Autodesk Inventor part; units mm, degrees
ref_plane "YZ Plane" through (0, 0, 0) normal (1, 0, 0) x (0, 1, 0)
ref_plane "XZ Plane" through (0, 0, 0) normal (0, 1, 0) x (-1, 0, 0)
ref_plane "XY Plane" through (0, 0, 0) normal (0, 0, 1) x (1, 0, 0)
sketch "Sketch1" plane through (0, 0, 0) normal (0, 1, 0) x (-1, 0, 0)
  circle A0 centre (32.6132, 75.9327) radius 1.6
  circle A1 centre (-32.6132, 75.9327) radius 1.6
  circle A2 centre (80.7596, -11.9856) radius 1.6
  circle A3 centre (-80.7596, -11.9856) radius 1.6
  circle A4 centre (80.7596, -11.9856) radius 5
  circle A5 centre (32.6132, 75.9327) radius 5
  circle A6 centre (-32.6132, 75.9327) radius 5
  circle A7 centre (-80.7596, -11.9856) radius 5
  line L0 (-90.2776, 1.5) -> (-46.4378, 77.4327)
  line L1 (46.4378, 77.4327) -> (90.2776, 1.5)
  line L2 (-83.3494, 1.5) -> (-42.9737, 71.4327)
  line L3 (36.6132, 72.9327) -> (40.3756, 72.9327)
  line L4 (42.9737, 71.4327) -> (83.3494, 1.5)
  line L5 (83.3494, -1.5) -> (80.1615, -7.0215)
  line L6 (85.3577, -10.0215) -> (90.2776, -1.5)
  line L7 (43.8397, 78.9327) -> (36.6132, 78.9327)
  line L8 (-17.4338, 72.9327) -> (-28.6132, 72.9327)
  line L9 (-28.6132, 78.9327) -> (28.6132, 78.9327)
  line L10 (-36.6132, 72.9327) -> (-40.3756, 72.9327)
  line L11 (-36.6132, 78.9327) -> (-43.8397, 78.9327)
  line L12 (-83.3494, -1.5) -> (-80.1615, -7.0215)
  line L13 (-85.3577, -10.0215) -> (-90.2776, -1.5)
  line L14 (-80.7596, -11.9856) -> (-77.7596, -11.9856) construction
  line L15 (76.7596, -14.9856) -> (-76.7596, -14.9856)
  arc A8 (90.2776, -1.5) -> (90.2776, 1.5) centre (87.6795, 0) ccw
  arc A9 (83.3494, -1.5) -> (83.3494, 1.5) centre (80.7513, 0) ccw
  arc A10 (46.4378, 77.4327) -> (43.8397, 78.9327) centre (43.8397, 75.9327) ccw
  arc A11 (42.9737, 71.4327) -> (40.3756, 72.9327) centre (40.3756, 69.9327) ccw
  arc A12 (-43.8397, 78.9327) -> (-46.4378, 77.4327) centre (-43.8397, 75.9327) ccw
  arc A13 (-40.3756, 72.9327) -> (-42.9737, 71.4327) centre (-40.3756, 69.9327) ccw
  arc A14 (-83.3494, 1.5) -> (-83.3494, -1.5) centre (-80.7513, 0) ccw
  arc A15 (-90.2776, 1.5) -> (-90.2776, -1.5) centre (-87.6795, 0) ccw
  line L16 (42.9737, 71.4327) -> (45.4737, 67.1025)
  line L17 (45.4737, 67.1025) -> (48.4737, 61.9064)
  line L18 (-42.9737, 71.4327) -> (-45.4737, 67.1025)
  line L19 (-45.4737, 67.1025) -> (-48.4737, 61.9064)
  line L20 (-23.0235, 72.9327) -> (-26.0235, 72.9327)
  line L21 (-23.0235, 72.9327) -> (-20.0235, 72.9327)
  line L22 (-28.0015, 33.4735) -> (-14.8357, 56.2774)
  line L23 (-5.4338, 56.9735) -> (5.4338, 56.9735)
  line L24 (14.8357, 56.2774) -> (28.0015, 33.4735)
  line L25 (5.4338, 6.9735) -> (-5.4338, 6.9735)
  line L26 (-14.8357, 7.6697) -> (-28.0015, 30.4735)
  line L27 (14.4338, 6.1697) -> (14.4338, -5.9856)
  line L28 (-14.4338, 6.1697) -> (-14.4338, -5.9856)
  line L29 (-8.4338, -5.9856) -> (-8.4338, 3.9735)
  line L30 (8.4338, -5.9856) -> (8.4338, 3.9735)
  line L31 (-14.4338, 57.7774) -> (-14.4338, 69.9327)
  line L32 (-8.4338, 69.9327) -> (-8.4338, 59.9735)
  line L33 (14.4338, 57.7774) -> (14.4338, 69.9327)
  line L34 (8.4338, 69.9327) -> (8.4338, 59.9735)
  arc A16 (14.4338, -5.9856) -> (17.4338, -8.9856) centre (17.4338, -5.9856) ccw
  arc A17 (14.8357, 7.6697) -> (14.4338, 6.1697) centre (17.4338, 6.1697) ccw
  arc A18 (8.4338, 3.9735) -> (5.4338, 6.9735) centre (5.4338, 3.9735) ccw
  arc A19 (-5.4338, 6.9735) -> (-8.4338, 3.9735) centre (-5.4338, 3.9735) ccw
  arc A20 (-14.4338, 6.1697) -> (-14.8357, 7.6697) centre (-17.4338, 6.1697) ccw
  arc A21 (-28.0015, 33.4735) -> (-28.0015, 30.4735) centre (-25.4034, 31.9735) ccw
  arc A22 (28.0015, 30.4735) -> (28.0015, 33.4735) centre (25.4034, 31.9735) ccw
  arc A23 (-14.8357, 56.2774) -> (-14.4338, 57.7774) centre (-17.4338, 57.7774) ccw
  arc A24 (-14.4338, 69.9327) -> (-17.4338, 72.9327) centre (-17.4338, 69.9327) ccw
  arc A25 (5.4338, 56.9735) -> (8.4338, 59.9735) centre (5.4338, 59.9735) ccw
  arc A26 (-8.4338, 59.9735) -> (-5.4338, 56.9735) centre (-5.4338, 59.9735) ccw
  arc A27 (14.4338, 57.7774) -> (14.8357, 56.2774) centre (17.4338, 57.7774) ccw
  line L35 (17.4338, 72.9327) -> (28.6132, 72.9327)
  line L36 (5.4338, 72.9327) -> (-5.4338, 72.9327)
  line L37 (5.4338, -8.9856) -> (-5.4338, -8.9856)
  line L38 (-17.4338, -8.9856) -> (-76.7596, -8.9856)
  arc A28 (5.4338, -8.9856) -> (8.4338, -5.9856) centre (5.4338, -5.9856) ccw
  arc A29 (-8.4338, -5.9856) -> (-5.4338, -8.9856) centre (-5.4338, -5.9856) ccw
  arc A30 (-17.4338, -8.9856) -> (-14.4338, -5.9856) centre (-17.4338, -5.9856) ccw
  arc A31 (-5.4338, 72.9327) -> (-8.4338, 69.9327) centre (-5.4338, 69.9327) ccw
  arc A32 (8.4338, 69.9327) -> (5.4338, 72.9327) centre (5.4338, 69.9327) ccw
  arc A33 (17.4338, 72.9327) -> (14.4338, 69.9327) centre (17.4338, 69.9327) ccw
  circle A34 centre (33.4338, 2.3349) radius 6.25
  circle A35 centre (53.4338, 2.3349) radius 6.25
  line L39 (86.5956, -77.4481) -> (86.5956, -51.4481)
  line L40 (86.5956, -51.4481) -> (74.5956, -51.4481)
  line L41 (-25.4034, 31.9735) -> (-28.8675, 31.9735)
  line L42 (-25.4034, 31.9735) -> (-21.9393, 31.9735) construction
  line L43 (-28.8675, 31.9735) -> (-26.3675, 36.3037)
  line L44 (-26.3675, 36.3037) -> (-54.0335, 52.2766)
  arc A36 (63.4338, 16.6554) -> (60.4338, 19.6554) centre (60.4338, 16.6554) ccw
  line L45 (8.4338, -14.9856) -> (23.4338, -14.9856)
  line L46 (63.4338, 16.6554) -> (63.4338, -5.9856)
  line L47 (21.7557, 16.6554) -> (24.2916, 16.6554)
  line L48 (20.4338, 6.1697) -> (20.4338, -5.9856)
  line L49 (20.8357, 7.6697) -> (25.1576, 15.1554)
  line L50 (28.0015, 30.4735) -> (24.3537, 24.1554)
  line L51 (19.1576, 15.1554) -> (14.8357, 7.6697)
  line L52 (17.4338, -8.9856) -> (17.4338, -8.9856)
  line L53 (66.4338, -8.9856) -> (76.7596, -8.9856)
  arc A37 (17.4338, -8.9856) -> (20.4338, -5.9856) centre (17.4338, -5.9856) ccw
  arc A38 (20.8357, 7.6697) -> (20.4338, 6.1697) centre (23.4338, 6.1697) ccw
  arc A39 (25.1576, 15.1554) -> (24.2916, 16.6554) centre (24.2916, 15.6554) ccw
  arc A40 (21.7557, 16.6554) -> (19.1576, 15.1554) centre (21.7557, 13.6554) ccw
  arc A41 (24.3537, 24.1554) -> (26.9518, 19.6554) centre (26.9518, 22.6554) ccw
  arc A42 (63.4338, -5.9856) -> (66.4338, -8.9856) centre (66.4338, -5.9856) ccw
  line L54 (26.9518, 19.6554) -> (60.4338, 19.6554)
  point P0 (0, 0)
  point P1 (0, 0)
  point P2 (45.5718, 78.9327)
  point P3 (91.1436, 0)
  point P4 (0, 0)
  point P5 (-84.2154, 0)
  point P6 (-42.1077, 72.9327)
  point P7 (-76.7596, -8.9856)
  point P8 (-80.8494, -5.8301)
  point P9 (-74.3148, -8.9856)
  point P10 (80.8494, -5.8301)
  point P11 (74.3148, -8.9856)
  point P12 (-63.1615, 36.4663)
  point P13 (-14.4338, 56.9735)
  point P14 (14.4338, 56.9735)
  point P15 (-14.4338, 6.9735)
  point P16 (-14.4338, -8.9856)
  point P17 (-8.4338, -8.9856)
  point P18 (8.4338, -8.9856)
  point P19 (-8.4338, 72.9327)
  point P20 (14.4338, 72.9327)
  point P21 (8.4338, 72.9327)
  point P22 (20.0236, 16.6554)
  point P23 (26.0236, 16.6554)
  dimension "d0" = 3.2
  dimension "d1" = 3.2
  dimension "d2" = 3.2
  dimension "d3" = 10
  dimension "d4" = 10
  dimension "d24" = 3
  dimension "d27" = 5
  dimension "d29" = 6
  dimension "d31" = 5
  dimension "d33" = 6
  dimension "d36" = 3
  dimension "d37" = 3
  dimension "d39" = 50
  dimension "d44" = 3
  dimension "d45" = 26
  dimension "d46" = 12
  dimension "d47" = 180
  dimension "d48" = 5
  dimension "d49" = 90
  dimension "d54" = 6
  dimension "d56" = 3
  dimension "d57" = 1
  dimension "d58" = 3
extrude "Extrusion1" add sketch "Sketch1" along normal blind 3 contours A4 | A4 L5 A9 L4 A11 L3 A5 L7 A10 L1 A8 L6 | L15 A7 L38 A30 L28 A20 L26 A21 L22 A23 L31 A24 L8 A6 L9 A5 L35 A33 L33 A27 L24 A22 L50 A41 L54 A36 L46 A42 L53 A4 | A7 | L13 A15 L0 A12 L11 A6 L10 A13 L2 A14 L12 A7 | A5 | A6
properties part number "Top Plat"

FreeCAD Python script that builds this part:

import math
import FreeCAD as App
import Part
import Sketcher

doc = App.newDocument("Part")
body = doc.addObject("PartDesign::Body", "Body")

# Sketch on XZ plane
sketch1 = body.newObject("Sketcher::SketchObject", "Sketch")
sketch1.AttachmentSupport = (doc.getObject("XZ_Plane"), [""])
sketch1.MapMode = "FlatFace"
sketch1.addGeometry(Part.ArcOfCircle(Part.Circle(App.Vector(-80.8, -12, 0), App.Vector(0, 0, 1), 5), math.radians(157), math.radians(323)), False)
sketch1.addGeometry(Part.LineSegment(App.Vector(-85.4, -10, 0), App.Vector(-90.3, -1.5, 0)), False)
sketch1.addGeometry(Part.ArcOfCircle(Part.Circle(App.Vector(-87.7, 0, 0), App.Vector(0, 0, 1), 3), math.radians(150), math.radians(210)), False)
sketch1.addGeometry(Part.LineSegment(App.Vector(-90.3, 1.5, 0), App.Vector(-46.4, 77.4, 0)), False)
sketch1.addGeometry(Part.ArcOfCircle(Part.Circle(App.Vector(-43.8, 75.9, 0), App.Vector(0, 0, 1), 3), math.radians(90), math.radians(150)), False)
sketch1.addGeometry(Part.LineSegment(App.Vector(-43.8, 78.9, 0), App.Vector(-36.6, 78.9, 0)), False)
sketch1.addGeometry(Part.ArcOfCircle(Part.Circle(App.Vector(-32.6, 75.9, 0), App.Vector(0, 0, 1), 5), math.radians(37), math.radians(143)), False)
sketch1.addGeometry(Part.LineSegment(App.Vector(-28.6, 78.9, 0), App.Vector(28.6, 78.9, 0)), False)
sketch1.addGeometry(Part.ArcOfCircle(Part.Circle(App.Vector(32.6, 75.9, 0), App.Vector(0, 0, 1), 5), math.radians(37), math.radians(143)), False)
sketch1.addGeometry(Part.LineSegment(App.Vector(36.6, 78.9, 0), App.Vector(43.8, 78.9, 0)), False)
sketch1.addGeometry(Part.ArcOfCircle(Part.Circle(App.Vector(43.8, 75.9, 0), App.Vector(0, 0, 1), 3), math.radians(30), math.radians(90)), False)
sketch1.addGeometry(Part.LineSegment(App.Vector(46.4, 77.4, 0), App.Vector(90.3, 1.5, 0)), False)
sketch1.addGeometry(Part.ArcOfCircle(Part.Circle(App.Vector(87.7, 0, 0), App.Vector(0, 0, 1), 3), math.radians(-30), math.radians(30)), False)
sketch1.addGeometry(Part.LineSegment(App.Vector(90.3, -1.5, 0), App.Vector(85.4, -10, 0)), False)
sketch1.addGeometry(Part.ArcOfCircle(Part.Circle(App.Vector(80.8, -12, 0), App.Vector(0, 0, 1), 5), math.radians(-143), math.radians(23)), False)
sketch1.addGeometry(Part.LineSegment(App.Vector(76.8, -15, 0), App.Vector(-76.8, -15, 0)), False)
sketch1.addGeometry(Part.ArcOfCircle(Part.Circle(App.Vector(-80.8, -12, 0), App.Vector(0, 0, 1), 5), math.radians(37), math.radians(83)), False)
sketch1.addGeometry(Part.LineSegment(App.Vector(-76.8, -9, 0), App.Vector(-66.4, -9, 0)), False)
sketch1.addGeometry(Part.ArcOfCircle(Part.Circle(App.Vector(-66.4, -6, 0), App.Vector(0, 0, 1), 3), math.radians(-90), math.radians(0)), False)
sketch1.addGeometry(Part.LineSegment(App.Vector(-63.4, -6, 0), App.Vector(-63.4, 16.7, 0)), False)
sketch1.addGeometry(Part.ArcOfCircle(Part.Circle(App.Vector(-60.4, 16.7, 0), App.Vector(0, 0, 1), 3), math.radians(90), math.radians(180)), False)
sketch1.addGeometry(Part.LineSegment(App.Vector(-60.4, 19.7, 0), App.Vector(-27, 19.7, 0)), False)
sketch1.addGeometry(Part.ArcOfCircle(Part.Circle(App.Vector(-27, 22.7, 0), App.Vector(0, 0, 1), 3), math.radians(-90), math.radians(30)), False)
sketch1.addGeometry(Part.LineSegment(App.Vector(-24.4, 24.2, 0), App.Vector(-28, 30.5, 0)), False)
sketch1.addGeometry(Part.ArcOfCircle(Part.Circle(App.Vector(-25.4, 32, 0), App.Vector(0, 0, 1), 3), math.radians(150), math.radians(210)), False)
sketch1.addGeometry(Part.LineSegment(App.Vector(-28, 33.5, 0), App.Vector(-14.8, 56.3, 0)), False)
sketch1.addGeometry(Part.ArcOfCircle(Part.Circle(App.Vector(-17.4, 57.8, 0), App.Vector(0, 0, 1), 3), math.radians(-30), math.radians(0)), False)
sketch1.addGeometry(Part.LineSegment(App.Vector(-14.4, 57.8, 0), App.Vector(-14.4, 69.9, 0)), False)
sketch1.addGeometry(Part.ArcOfCircle(Part.Circle(App.Vector(-17.4, 69.9, 0), App.Vector(0, 0, 1), 3), math.radians(0), math.radians(90)), False)
sketch1.addGeometry(Part.LineSegment(App.Vector(-17.4, 72.9, 0), App.Vector(-28.6, 72.9, 0)), False)
sketch1.addGeometry(Part.ArcOfCircle(Part.Circle(App.Vector(-32.6, 75.9, 0), App.Vector(0, 0, 1), 5), math.radians(-143), math.radians(-37)), False)
sketch1.addGeometry(Part.LineSegment(App.Vector(-36.6, 72.9, 0), App.Vector(-40.4, 72.9, 0)), False)
sketch1.addGeometry(Part.ArcOfCircle(Part.Circle(App.Vector(-40.4, 69.9, 0), App.Vector(0, 0, 1), 3), math.radians(90), math.radians(150)), False)
sketch1.addGeometry(Part.LineSegment(App.Vector(-43, 71.4, 0), App.Vector(-83.3, 1.5, 0)), False)
sketch1.addGeometry(Part.ArcOfCircle(Part.Circle(App.Vector(-80.8, 0, 0), App.Vector(0, 0, 1), 3), math.radians(150), math.radians(210)), False)
sketch1.addGeometry(Part.LineSegment(App.Vector(-83.3, -1.5, 0), App.Vector(-80.2, -7, 0)), False)
sketch1.addGeometry(Part.Circle(App.Vector(-80.8, -12, 0), App.Vector(0, 0, 1), 1.6), False)
sketch1.addGeometry(Part.LineSegment(App.Vector(17.4, -9, 0), App.Vector(76.8, -9, 0)), False)
sketch1.addGeometry(Part.ArcOfCircle(Part.Circle(App.Vector(80.8, -12, 0), App.Vector(0, 0, 1), 5), math.radians(97), math.radians(143)), False)
sketch1.addGeometry(Part.LineSegment(App.Vector(80.2, -7, 0), App.Vector(83.3, -1.5, 0)), False)
sketch1.addGeometry(Part.ArcOfCircle(Part.Circle(App.Vector(80.8, 0, 0), App.Vector(0, 0, 1), 3), math.radians(-30), math.radians(30)), False)
sketch1.addGeometry(Part.LineSegment(App.Vector(83.3, 1.5, 0), App.Vector(43, 71.4, 0)), False)
sketch1.addGeometry(Part.ArcOfCircle(Part.Circle(App.Vector(40.4, 69.9, 0), App.Vector(0, 0, 1), 3), math.radians(30), math.radians(90)), False)
sketch1.addGeometry(Part.LineSegment(App.Vector(40.4, 72.9, 0), App.Vector(36.6, 72.9, 0)), False)
sketch1.addGeometry(Part.ArcOfCircle(Part.Circle(App.Vector(32.6, 75.9, 0), App.Vector(0, 0, 1), 5), math.radians(-143), math.radians(-37)), False)
sketch1.addGeometry(Part.LineSegment(App.Vector(28.6, 72.9, 0), App.Vector(17.4, 72.9, 0)), False)
sketch1.addGeometry(Part.ArcOfCircle(Part.Circle(App.Vector(17.4, 69.9, 0), App.Vector(0, 0, 1), 3), math.radians(90), math.radians(180)), False)
sketch1.addGeometry(Part.LineSegment(App.Vector(14.4, 69.9, 0), App.Vector(14.4, 57.8, 0)), False)
sketch1.addGeometry(Part.ArcOfCircle(Part.Circle(App.Vector(17.4, 57.8, 0), App.Vector(0, 0, 1), 3), math.radians(180), math.radians(210)), False)
sketch1.addGeometry(Part.LineSegment(App.Vector(14.8, 56.3, 0), App.Vector(28, 33.5, 0)), False)
sketch1.addGeometry(Part.ArcOfCircle(Part.Circle(App.Vector(25.4, 32, 0), App.Vector(0, 0, 1), 3), math.radians(-30), math.radians(30)), False)
sketch1.addGeometry(Part.LineSegment(App.Vector(28, 30.5, 0), App.Vector(14.8, 7.7, 0)), False)
sketch1.addGeometry(Part.ArcOfCircle(Part.Circle(App.Vector(17.4, 6.2, 0), App.Vector(0, 0, 1), 3), math.radians(150), math.radians(180)), False)
sketch1.addGeometry(Part.LineSegment(App.Vector(14.4, 6.2, 0), App.Vector(14.4, -6, 0)), False)
sketch1.addGeometry(Part.ArcOfCircle(Part.Circle(App.Vector(17.4, -6, 0), App.Vector(0, 0, 1), 3), math.radians(180), math.radians(270)), False)
sketch1.addGeometry(Part.ArcOfCircle(Part.Circle(App.Vector(5.4, 60, 0), App.Vector(0, 0, 1), 3), math.radians(-90), math.radians(0)), False)
sketch1.addGeometry(Part.LineSegment(App.Vector(8.4, 60, 0), App.Vector(8.4, 69.9, 0)), False)
sketch1.addGeometry(Part.ArcOfCircle(Part.Circle(App.Vector(5.4, 69.9, 0), App.Vector(0, 0, 1), 3), math.radians(0), math.radians(90)), False)
sketch1.addGeometry(Part.LineSegment(App.Vector(5.4, 72.9, 0), App.Vector(-5.4, 72.9, 0)), False)
sketch1.addGeometry(Part.ArcOfCircle(Part.Circle(App.Vector(-5.4, 69.9, 0), App.Vector(0, 0, 1), 3), math.radians(90), math.radians(180)), False)
sketch1.addGeometry(Part.LineSegment(App.Vector(-8.4, 69.9, 0), App.Vector(-8.4, 60, 0)), False)
sketch1.addGeometry(Part.ArcOfCircle(Part.Circle(App.Vector(-5.4, 60, 0), App.Vector(0, 0, 1), 3), math.radians(180), math.radians(270)), False)
sketch1.addGeometry(Part.LineSegment(App.Vector(-5.4, 57, 0), App.Vector(5.4, 57, 0)), False)
sketch1.addGeometry(Part.LineSegment(App.Vector(5.4, 7, 0), App.Vector(-5.4, 7, 0)), False)
sketch1.addGeometry(Part.ArcOfCircle(Part.Circle(App.Vector(-5.4, 4, 0), App.Vector(0, 0, 1), 3), math.radians(90), math.radians(180)), False)
sketch1.addGeometry(Part.LineSegment(App.Vector(-8.4, 4, 0), App.Vector(-8.4, -6, 0)), False)
sketch1.addGeometry(Part.ArcOfCircle(Part.Circle(App.Vector(-5.4, -6, 0), App.Vector(0, 0, 1), 3), math.radians(180), math.radians(270)), False)
sketch1.addGeometry(Part.LineSegment(App.Vector(-5.4, -9, 0), App.Vector(5.4, -9, 0)), False)
sketch1.addGeometry(Part.ArcOfCircle(Part.Circle(App.Vector(5.4, -6, 0), App.Vector(0, 0, 1), 3), math.radians(-90), math.radians(0)), False)
sketch1.addGeometry(Part.LineSegment(App.Vector(8.4, -6, 0), App.Vector(8.4, 4, 0)), False)
sketch1.addGeometry(Part.ArcOfCircle(Part.Circle(App.Vector(5.4, 4, 0), App.Vector(0, 0, 1), 3), math.radians(0), math.radians(90)), False)
sketch1.addGeometry(Part.LineSegment(App.Vector(-14.4, -6, 0), App.Vector(-14.4, 6.2, 0)), False)
sketch1.addGeometry(Part.ArcOfCircle(Part.Circle(App.Vector(-17.4, 6.2, 0), App.Vector(0, 0, 1), 3), math.radians(0), math.radians(30)), False)
sketch1.addGeometry(Part.LineSegment(App.Vector(-14.8, 7.7, 0), App.Vector(-19.2, 15.2, 0)), False)
sketch1.addGeometry(Part.ArcOfCircle(Part.Circle(App.Vector(-21.8, 13.7, 0), App.Vector(0, 0, 1), 3), math.radians(30), math.radians(90)), False)
sketch1.addGeometry(Part.LineSegment(App.Vector(-21.8, 16.7, 0), App.Vector(-24.3, 16.7, 0)), False)
sketch1.addGeometry(Part.ArcOfCircle(Part.Circle(App.Vector(-24.3, 15.7, 0), App.Vector(0, 0, 1), 1), math.radians(90), math.radians(210)), False)
sketch1.addGeometry(Part.LineSegment(App.Vector(-25.2, 15.2, 0), App.Vector(-20.8, 7.7, 0)), False)
sketch1.addGeometry(Part.ArcOfCircle(Part.Circle(App.Vector(-23.4, 6.2, 0), App.Vector(0, 0, 1), 3), math.radians(0), math.radians(30)), False)
sketch1.addGeometry(Part.LineSegment(App.Vector(-20.4, 6.2, 0), App.Vector(-20.4, -6, 0)), False)
sketch1.addGeometry(Part.ArcOfCircle(Part.Circle(App.Vector(-17.4, -6, 0), App.Vector(0, 0, 1), 3), math.radians(180), math.radians(360)), False)
sketch1.addGeometry(Part.Circle(App.Vector(-33.4, 2.3, 0), App.Vector(0, 0, 1), 6.2), False)
sketch1.addGeometry(Part.Circle(App.Vector(-53.4, 2.3, 0), App.Vector(0, 0, 1), 6.2), False)
sketch1.addGeometry(Part.Circle(App.Vector(80.8, -12, 0), App.Vector(0, 0, 1), 1.6), False)
sketch1.addGeometry(Part.Circle(App.Vector(32.6, 75.9, 0), App.Vector(0, 0, 1), 1.6), False)
sketch1.addGeometry(Part.Circle(App.Vector(-32.6, 75.9, 0), App.Vector(0, 0, 1), 1.6), False)
sketch1.addConstraint(Sketcher.Constraint("Coincident", 0, 1, 1, 1))
sketch1.addConstraint(Sketcher.Constraint("Tangent", 1, 2, 2, 2))
sketch1.addConstraint(Sketcher.Constraint("Tangent", 2, 1, 3, 1))
sketch1.addConstraint(Sketcher.Constraint("Tangent", 3, 2, 4, 2))
sketch1.addConstraint(Sketcher.Constraint("Tangent", 4, 1, 5, 1))
sketch1.addConstraint(Sketcher.Constraint("Coincident", 5, 2, 6, 2))
sketch1.addConstraint(Sketcher.Constraint("Coincident", 6, 1, 7, 1))
sketch1.addConstraint(Sketcher.Constraint("Coincident", 7, 2, 8, 2))
sketch1.addConstraint(Sketcher.Constraint("Coincident", 8, 1, 9, 1))
sketch1.addConstraint(Sketcher.Constraint("Tangent", 9, 2, 10, 2))
sketch1.addConstraint(Sketcher.Constraint("Tangent", 10, 1, 11, 1))
sketch1.addConstraint(Sketcher.Constraint("Tangent", 11, 2, 12, 2))
sketch1.addConstraint(Sketcher.Constraint("Tangent", 12, 1, 13, 1))
sketch1.addConstraint(Sketcher.Constraint("Coincident", 13, 2, 14, 2))
sketch1.addConstraint(Sketcher.Constraint("Coincident", 14, 1, 15, 1))
sketch1.addConstraint(Sketcher.Constraint("Coincident", 15, 2, 0, 2))
sketch1.addConstraint(Sketcher.Constraint("Coincident", 16, 1, 17, 1))
sketch1.addConstraint(Sketcher.Constraint("Tangent", 17, 2, 18, 1))
sketch1.addConstraint(Sketcher.Constraint("Tangent", 18, 2, 19, 1))
sketch1.addConstraint(Sketcher.Constraint("Tangent", 19, 2, 20, 2))
sketch1.addConstraint(Sketcher.Constraint("Tangent", 20, 1, 21, 1))
sketch1.addConstraint(Sketcher.Constraint("Tangent", 21, 2, 22, 1))
sketch1.addConstraint(Sketcher.Constraint("Tangent", 22, 2, 23, 1))
sketch1.addConstraint(Sketcher.Constraint("Tangent", 23, 2, 24, 2))
sketch1.addConstraint(Sketcher.Constraint("Tangent", 24, 1, 25, 1))
sketch1.addConstraint(Sketcher.Constraint("Tangent", 25, 2, 26, 1))
sketch1.addConstraint(Sketcher.Constraint("Tangent", 26, 2, 27, 1))
sketch1.addConstraint(Sketcher.Constraint("Tangent", 27, 2, 28, 1))
sketch1.addConstraint(Sketcher.Constraint("Tangent", 28, 2, 29, 1))
sketch1.addConstraint(Sketcher.Constraint("Coincident", 29, 2, 30, 2))
sketch1.addConstraint(Sketcher.Constraint("Coincident", 30, 1, 31, 1))
sketch1.addConstraint(Sketcher.Constraint("Tangent", 31, 2, 32, 1))
sketch1.addConstraint(Sketcher.Constraint("Tangent", 32, 2, 33, 1))
sketch1.addConstraint(Sketcher.Constraint("Tangent", 33, 2, 34, 1))
sketch1.addConstraint(Sketcher.Constraint("Tangent", 34, 2, 35, 1))
sketch1.addConstraint(Sketcher.Constraint("Coincident", 35, 2, 16, 2))
sketch1.addConstraint(Sketcher.Constraint("Coincident", 37, 2, 38, 2))
sketch1.addConstraint(Sketcher.Constraint("Coincident", 38, 1, 39, 1))
sketch1.addConstraint(Sketcher.Constraint("Tangent", 39, 2, 40, 1))
sketch1.addConstraint(Sketcher.Constraint("Tangent", 40, 2, 41, 1))
sketch1.addConstraint(Sketcher.Constraint("Tangent", 41, 2, 42, 1))
sketch1.addConstraint(Sketcher.Constraint("Tangent", 42, 2, 43, 1))
sketch1.addConstraint(Sketcher.Constraint("Coincident", 43, 2, 44, 2))
sketch1.addConstraint(Sketcher.Constraint("Coincident", 44, 1, 45, 1))
sketch1.addConstraint(Sketcher.Constraint("Tangent", 45, 2, 46, 1))
sketch1.addConstraint(Sketcher.Constraint("Tangent", 46, 2, 47, 1))
sketch1.addConstraint(Sketcher.Constraint("Tangent", 47, 2, 48, 1))
sketch1.addConstraint(Sketcher.Constraint("Tangent", 48, 2, 49, 1))
sketch1.addConstraint(Sketcher.Constraint("Tangent", 49, 2, 50, 2))
sketch1.addConstraint(Sketcher.Constraint("Tangent", 50, 1, 51, 1))
sketch1.addConstraint(Sketcher.Constraint("Tangent", 51, 2, 52, 1))
sketch1.addConstraint(Sketcher.Constraint("Tangent", 52, 2, 53, 1))
sketch1.addConstraint(Sketcher.Constraint("Tangent", 53, 2, 54, 1))
sketch1.addConstraint(Sketcher.Constraint("Tangent", 54, 2, 37, 1))
sketch1.addConstraint(Sketcher.Constraint("Tangent", 55, 2, 56, 1))
sketch1.addConstraint(Sketcher.Constraint("Tangent", 56, 2, 57, 1))
sketch1.addConstraint(Sketcher.Constraint("Tangent", 57, 2, 58, 1))
sketch1.addConstraint(Sketcher.Constraint("Tangent", 58, 2, 59, 1))
sketch1.addConstraint(Sketcher.Constraint("Tangent", 59, 2, 60, 1))
sketch1.addConstraint(Sketcher.Constraint("Tangent", 60, 2, 61, 1))
sketch1.addConstraint(Sketcher.Constraint("Tangent", 61, 2, 62, 1))
sketch1.addConstraint(Sketcher.Constraint("Tangent", 62, 2, 55, 1))
sketch1.addConstraint(Sketcher.Constraint("Tangent", 63, 2, 64, 1))
sketch1.addConstraint(Sketcher.Constraint("Tangent", 64, 2, 65, 1))
sketch1.addConstraint(Sketcher.Constraint("Tangent", 65, 2, 66, 1))
sketch1.addConstraint(Sketcher.Constraint("Tangent", 66, 2, 67, 1))
sketch1.addConstraint(Sketcher.Constraint("Tangent", 67, 2, 68, 1))
sketch1.addConstraint(Sketcher.Constraint("Tangent", 68, 2, 69, 1))
sketch1.addConstraint(Sketcher.Constraint("Tangent", 69, 2, 70, 1))
sketch1.addConstraint(Sketcher.Constraint("Tangent", 70, 2, 63, 1))
sketch1.addConstraint(Sketcher.Constraint("Tangent", 71, 2, 72, 1))
sketch1.addConstraint(Sketcher.Constraint("Tangent", 72, 2, 73, 1))
sketch1.addConstraint(Sketcher.Constraint("Tangent", 73, 2, 74, 1))
sketch1.addConstraint(Sketcher.Constraint("Tangent", 74, 2, 75, 1))
sketch1.addConstraint(Sketcher.Constraint("Tangent", 75, 2, 76, 1))
sketch1.addConstraint(Sketcher.Constraint("Tangent", 76, 2, 77, 1))
sketch1.addConstraint(Sketcher.Constraint("Tangent", 77, 2, 78, 2))
sketch1.addConstraint(Sketcher.Constraint("Tangent", 78, 1, 79, 1))
sketch1.addConstraint(Sketcher.Constraint("Tangent", 79, 2, 80, 1))
sketch1.addConstraint(Sketcher.Constraint("Tangent", 80, 2, 71, 1))
sketch1.addConstraint(Sketcher.Constraint("Horizontal", 5))
sketch1.addConstraint(Sketcher.Constraint("Horizontal", 7))
sketch1.addConstraint(Sketcher.Constraint("Horizontal", 9))
sketch1.addConstraint(Sketcher.Constraint("Horizontal", 15))
sketch1.addConstraint(Sketcher.Constraint("Horizontal", 17))
sketch1.addConstraint(Sketcher.Constraint("Vertical", 19))
sketch1.addConstraint(Sketcher.Constraint("Horizontal", 21))
sketch1.addConstraint(Sketcher.Constraint("Vertical", 27))
sketch1.addConstraint(Sketcher.Constraint("Horizontal", 29))
sketch1.addConstraint(Sketcher.Constraint("Horizontal", 31))
sketch1.addConstraint(Sketcher.Constraint("Horizontal", 37))
sketch1.addConstraint(Sketcher.Constraint("Horizontal", 43))
sketch1.addConstraint(Sketcher.Constraint("Horizontal", 45))
sketch1.addConstraint(Sketcher.Constraint("Vertical", 47))
sketch1.addConstraint(Sketcher.Constraint("Vertical", 53))
sketch1.addConstraint(Sketcher.Constraint("Vertical", 56))
sketch1.addConstraint(Sketcher.Constraint("Horizontal", 58))
sketch1.addConstraint(Sketcher.Constraint("Vertical", 60))
sketch1.addConstraint(Sketcher.Constraint("Horizontal", 62))
sketch1.addConstraint(Sketcher.Constraint("Horizontal", 63))
sketch1.addConstraint(Sketcher.Constraint("Vertical", 65))
sketch1.addConstraint(Sketcher.Constraint("Horizontal", 67))
sketch1.addConstraint(Sketcher.Constraint("Vertical", 69))
sketch1.addConstraint(Sketcher.Constraint("Vertical", 71))
sketch1.addConstraint(Sketcher.Constraint("Horizontal", 75))
sketch1.addConstraint(Sketcher.Constraint("Vertical", 79))
sketch1.addConstraint(Sketcher.Constraint("Coincident", 16, 3, 0, 3))
sketch1.addConstraint(Sketcher.Constraint("Coincident", 30, 3, 6, 3))
sketch1.addConstraint(Sketcher.Constraint("Coincident", 36, 3, 0, 3))
sketch1.addConstraint(Sketcher.Constraint("Coincident", 38, 3, 14, 3))
sketch1.addConstraint(Sketcher.Constraint("Coincident", 44, 3, 8, 3))
sketch1.addConstraint(Sketcher.Constraint("Coincident", 83, 3, 14, 3))
sketch1.addConstraint(Sketcher.Constraint("Coincident", 84, 3, 8, 3))
sketch1.addConstraint(Sketcher.Constraint("Coincident", 85, 3, 6, 3))
sketch1.addConstraint(Sketcher.Constraint("Equal", 2, 4))
sketch1.addConstraint(Sketcher.Constraint("Equal", 0, 6))
sketch1.addConstraint(Sketcher.Constraint("Equal", 6, 8))
sketch1.addConstraint(Sketcher.Constraint("Equal", 4, 10))
sketch1.addConstraint(Sketcher.Constraint("Equal", 10, 12))
sketch1.addConstraint(Sketcher.Constraint("Equal", 8, 14))
sketch1.addConstraint(Sketcher.Constraint("Equal", 14, 16))
sketch1.addConstraint(Sketcher.Constraint("Equal", 12, 18))
sketch1.addConstraint(Sketcher.Constraint("Equal", 18, 20))
sketch1.addConstraint(Sketcher.Constraint("Equal", 20, 22))
sketch1.addConstraint(Sketcher.Constraint("Equal", 22, 24))
sketch1.addConstraint(Sketcher.Constraint("Equal", 24, 26))
sketch1.addConstraint(Sketcher.Constraint("Equal", 26, 28))
sketch1.addConstraint(Sketcher.Constraint("Equal", 16, 30))
sketch1.addConstraint(Sketcher.Constraint("Equal", 28, 32))
sketch1.addConstraint(Sketcher.Constraint("Equal", 32, 34))
sketch1.addConstraint(Sketcher.Constraint("Equal", 30, 38))
sketch1.addConstraint(Sketcher.Constraint("Equal", 34, 40))
sketch1.addConstraint(Sketcher.Constraint("Equal", 40, 42))
sketch1.addConstraint(Sketcher.Constraint("Equal", 38, 44))
sketch1.addConstraint(Sketcher.Constraint("Equal", 42, 46))
sketch1.addConstraint(Sketcher.Constraint("Equal", 46, 48))
sketch1.addConstraint(Sketcher.Constraint("Equal", 48, 50))
sketch1.addConstraint(Sketcher.Constraint("Equal", 50, 52))
sketch1.addConstraint(Sketcher.Constraint("Equal", 52, 54))
sketch1.addConstraint(Sketcher.Constraint("Equal", 54, 55))
sketch1.addConstraint(Sketcher.Constraint("Equal", 55, 57))
sketch1.addConstraint(Sketcher.Constraint("Equal", 57, 59))
sketch1.addConstraint(Sketcher.Constraint("Equal", 59, 61))
sketch1.addConstraint(Sketcher.Constraint("Equal", 61, 64))
sketch1.addConstraint(Sketcher.Constraint("Equal", 64, 66))
sketch1.addConstraint(Sketcher.Constraint("Equal", 66, 68))
sketch1.addConstraint(Sketcher.Constraint("Equal", 68, 70))
sketch1.addConstraint(Sketcher.Constraint("Equal", 70, 72))
sketch1.addConstraint(Sketcher.Constraint("Equal", 72, 74))
sketch1.addConstraint(Sketcher.Constraint("Equal", 74, 78))
sketch1.addConstraint(Sketcher.Constraint("Equal", 78, 80))
sketch1.addConstraint(Sketcher.Constraint("Equal", 81, 82))
sketch1.addConstraint(Sketcher.Constraint("Equal", 36, 83))
sketch1.addConstraint(Sketcher.Constraint("Equal", 83, 84))
sketch1.addConstraint(Sketcher.Constraint("Equal", 84, 85))
sketch1.addConstraint(Sketcher.Constraint("Symmetric", 2, 3, 12, 3, -1, 1))
sketch1.addConstraint(Sketcher.Constraint("Symmetric", 34, 3, 40, 3, -1, 1))
sketch1.addConstraint(Sketcher.Constraint("Symmetric", 6, 3, 8, 3, -2))
sketch1.addConstraint(Sketcher.Constraint("Symmetric", 4, 3, 10, 3, -2))
sketch1.addConstraint(Sketcher.Constraint("Symmetric", 0, 3, 14, 3, -2))
sketch1.addConstraint(Sketcher.Constraint("Symmetric", 32, 3, 42, 3, -2))
sketch1.addConstraint(Sketcher.Constraint("Symmetric", 28, 3, 46, 3, -2))
sketch1.addConstraint(Sketcher.Constraint("Symmetric", 24, 3, 50, 3, -2))
sketch1.addConstraint(Sketcher.Constraint("Symmetric", 52, 3, 72, 3, -2))
sketch1.addConstraint(Sketcher.Constraint("Symmetric", 1, 2, 12, 1, -2))
sketch1.addConstraint(Sketcher.Constraint("Symmetric", 34, 2, 39, 2, -2))
sketch1.addConstraint(Sketcher.Constraint("Parallel", 1, 11))
sketch1.addConstraint(Sketcher.Constraint("Parallel", 11, 23))
sketch1.addConstraint(Sketcher.Constraint("Parallel", 13, 25))
sketch1.addConstraint(Sketcher.Constraint("Parallel", 25, 33))
sketch1.addConstraint(Sketcher.Constraint("Parallel", 23, 35))
sketch1.addConstraint(Sketcher.Constraint("Parallel", 41, 49))
sketch1.addConstraint(Sketcher.Constraint("Parallel", 39, 51))
sketch1.addConstraint(Sketcher.Constraint("Parallel", 49, 73))
sketch1.addConstraint(Sketcher.Constraint("Parallel", 73, 77))
sketch1.addConstraint(Sketcher.Constraint("Horizontal", 4, 3, 6, 3))
sketch1.addConstraint(Sketcher.Constraint("Horizontal", 28, 3, 32, 3))
sketch1.addConstraint(Sketcher.Constraint("Horizontal", 18, 3, 54, 3))
sketch1.addConstraint(Sketcher.Constraint("Horizontal", 46, 3, 57, 3))
sketch1.addConstraint(Sketcher.Constraint("Horizontal", 54, 3, 66, 3))
sketch1.addConstraint(Sketcher.Constraint("Horizontal", 72, 3, 78, 3))
sketch1.addConstraint(Sketcher.Constraint("Horizontal", 68, 3, 80, 3))
sketch1.addConstraint(Sketcher.Constraint("Horizontal", 81, 3, 82, 3))
sketch1.addConstraint(Sketcher.Constraint("Horizontal", 5, 2, 6, 1))
sketch1.addConstraint(Sketcher.Constraint("Horizontal", 19, 2, 74, 2))
sketch1.addConstraint(Sketcher.Constraint("Horizontal", 73, 2, 76, 2))
sketch1.addConstraint(Sketcher.Constraint("Vertical", 48, 3, 52, 3))
sketch1.addConstraint(Sketcher.Constraint("Vertical", 61, 3, 64, 3))
sketch1.addConstraint(Sketcher.Constraint("Vertical", 57, 3, 68, 3))
sketch1.addConstraint(Sketcher.Constraint("Vertical", 15, 2, 16, 1))
sketch1.addConstraint(Sketcher.Constraint("Vertical", 6, 1, 29, 2))
sketch1.addConstraint(Sketcher.Constraint("Equal", 47, 53))
sketch1.addConstraint(Sketcher.Constraint("Equal", 60, 65))
sketch1.addConstraint(Sketcher.Constraint("Radius", 0, 5.0))
sketch1.addConstraint(Sketcher.Constraint("Radius", 2, 3.0))
sketch1.addConstraint(Sketcher.Constraint("Radius", 76, 1.0))
sketch1.addConstraint(Sketcher.Constraint("Diameter", 36, 3.2))
sketch1.addConstraint(Sketcher.Constraint("Diameter", 81, 12.5))
sketch1.addConstraint(Sketcher.Constraint("DistanceX", 21, 1, 21, 2, 33.482))
sketch1.addConstraint(Sketcher.Constraint("DistanceY", 19, 1, 19, 2, 22.641))
sketch1.addConstraint(Sketcher.Constraint("DistanceY", 65, 2, 65, 1, 9.959))
sketch1.addConstraint(Sketcher.Constraint("DistanceX", 5, 1, 5, 2, 7.2265))
sketch1.addConstraint(Sketcher.Constraint("DistanceX", 7, 1, 7, 2, 57.2264))
sketch1.addConstraint(Sketcher.Constraint("DistanceX", 15, 2, 15, 1, 153.5192))
sketch1.addConstraint(Sketcher.Constraint("DistanceX", 17, 1, 17, 2, 10.3258))
sketch1.addConstraint(Sketcher.Constraint("DistanceX", 29, 2, 29, 1, 11.1794))
sketch1.addConstraint(Sketcher.Constraint("DistanceX", 31, 2, 31, 1, 3.7624))
sketch1.addConstraint(Sketcher.Constraint("DistanceX", 58, 2, 58, 1, 10.8676))
sketch1.addConstraint(Sketcher.Constraint("DistanceY", -1, 1, 81, 3, 2.335))
sketch1.addConstraint(Sketcher.Constraint("Distance", 1, 9.8398))
sketch1.addConstraint(Sketcher.Constraint("Distance", 3, 87.6795))
sketch1.addConstraint(Sketcher.Constraint("Distance", 23, 7.2955))
sketch1.addConstraint(Sketcher.Constraint("DistanceX", -1, 1, 55, 3, 5.4338))
sketch1.addConstraint(Sketcher.Constraint("DistanceX", 81, 3, -1, 1, 33.4338))
sketch1.addConstraint(Sketcher.Constraint("DistanceX", 82, 3, -1, 1, 53.4338))
pad1 = body.newObject("PartDesign::Pad", "Pad")
pad1.Profile = sketch1
pad1.Length = 3
pad1.Reversed = True

doc.recompute()
